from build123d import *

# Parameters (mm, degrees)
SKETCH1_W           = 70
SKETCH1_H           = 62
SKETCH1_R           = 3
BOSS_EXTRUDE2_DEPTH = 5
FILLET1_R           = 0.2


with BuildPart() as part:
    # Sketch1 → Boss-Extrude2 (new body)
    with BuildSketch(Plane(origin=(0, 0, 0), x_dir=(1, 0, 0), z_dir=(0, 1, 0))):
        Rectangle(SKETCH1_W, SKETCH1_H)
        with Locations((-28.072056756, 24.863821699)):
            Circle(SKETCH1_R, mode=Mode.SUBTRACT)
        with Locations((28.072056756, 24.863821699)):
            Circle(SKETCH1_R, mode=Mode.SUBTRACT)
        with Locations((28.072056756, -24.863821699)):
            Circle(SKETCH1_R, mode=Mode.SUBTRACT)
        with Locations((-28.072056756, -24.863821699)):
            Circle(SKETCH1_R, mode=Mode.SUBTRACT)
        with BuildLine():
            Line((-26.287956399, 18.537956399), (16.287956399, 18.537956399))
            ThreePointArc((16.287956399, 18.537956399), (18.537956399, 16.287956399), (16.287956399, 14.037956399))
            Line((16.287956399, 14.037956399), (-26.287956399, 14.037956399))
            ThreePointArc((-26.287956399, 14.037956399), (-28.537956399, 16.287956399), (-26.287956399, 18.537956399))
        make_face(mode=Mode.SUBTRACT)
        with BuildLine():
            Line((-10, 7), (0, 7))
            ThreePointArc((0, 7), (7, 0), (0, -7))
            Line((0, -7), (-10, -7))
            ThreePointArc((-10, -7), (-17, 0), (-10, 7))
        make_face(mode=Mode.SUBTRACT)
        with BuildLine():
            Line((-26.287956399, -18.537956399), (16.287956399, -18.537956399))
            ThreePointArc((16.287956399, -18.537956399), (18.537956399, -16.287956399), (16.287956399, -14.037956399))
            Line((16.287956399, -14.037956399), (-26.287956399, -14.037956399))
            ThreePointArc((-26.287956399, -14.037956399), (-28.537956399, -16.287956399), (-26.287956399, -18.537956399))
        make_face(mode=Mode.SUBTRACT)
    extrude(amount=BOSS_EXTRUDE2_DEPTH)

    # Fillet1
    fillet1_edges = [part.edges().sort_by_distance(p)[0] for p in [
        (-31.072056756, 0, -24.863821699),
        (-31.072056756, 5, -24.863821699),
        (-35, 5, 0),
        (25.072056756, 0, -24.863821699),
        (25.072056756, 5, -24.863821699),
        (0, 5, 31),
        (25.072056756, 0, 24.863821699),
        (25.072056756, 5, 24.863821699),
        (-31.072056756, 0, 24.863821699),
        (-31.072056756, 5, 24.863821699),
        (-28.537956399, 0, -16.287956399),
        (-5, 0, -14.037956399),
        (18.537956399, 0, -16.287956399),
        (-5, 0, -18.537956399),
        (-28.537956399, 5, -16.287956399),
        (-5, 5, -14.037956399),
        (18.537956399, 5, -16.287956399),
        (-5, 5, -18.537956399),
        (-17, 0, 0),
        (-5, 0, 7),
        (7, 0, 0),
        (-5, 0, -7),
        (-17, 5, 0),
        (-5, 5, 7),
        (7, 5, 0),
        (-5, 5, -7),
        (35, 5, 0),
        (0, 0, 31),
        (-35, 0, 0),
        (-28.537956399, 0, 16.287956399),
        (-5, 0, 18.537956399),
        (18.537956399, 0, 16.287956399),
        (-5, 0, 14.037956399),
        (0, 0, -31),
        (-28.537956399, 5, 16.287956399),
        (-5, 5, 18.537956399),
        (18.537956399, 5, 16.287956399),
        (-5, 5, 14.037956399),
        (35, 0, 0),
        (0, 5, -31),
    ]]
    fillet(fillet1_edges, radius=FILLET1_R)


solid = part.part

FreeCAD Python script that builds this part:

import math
import FreeCAD as App
import Part
import Sketcher
Q = App.Units.Quantity


def edges_at(feature, points):
    """Names of the edges that pass closest to the given points."""
    edges = feature.Shape.Edges
    near = lambda p: min(range(len(edges)), key=lambda i: edges[i].distToShape(Part.Vertex(*p))[0])
    return sorted({f"Edge{near(p) + 1}" for p in points})

doc = App.newDocument("Part")
body = doc.addObject("PartDesign::Body", "Body")

# Sketch on XZ plane
sketch1 = body.newObject("Sketcher::SketchObject", "Sketch")
sketch1.AttachmentSupport = (doc.getObject("XZ_Plane"), [""])
sketch1.MapMode = "FlatFace"
sketch1.addGeometry([
    Part.LineSegment(App.Vector(-35, -31, 0), App.Vector(-35, 31, 0)),  # 0
    Part.LineSegment(App.Vector(-35, 31, 0), App.Vector(35, 31, 0)),  # 1
    Part.LineSegment(App.Vector(35, 31, 0), App.Vector(35, -31, 0)),  # 2
    Part.LineSegment(App.Vector(35, -31, 0), App.Vector(-35, -31, 0)),  # 3
    Part.Circle(App.Vector(-28.1, 24.9, 0), App.Vector(0, 0, 1), 3),  # 4
    Part.LineSegment(App.Vector(16.3, 18.5, 0), App.Vector(-26.3, 18.5, 0)),  # 5
    Part.ArcOfCircle(Part.Circle(App.Vector(-26.3, 16.3, 0), App.Vector(0, 0, 1), 2.2), math.radians(90), math.radians(270)),  # 6
    Part.LineSegment(App.Vector(-26.3, 14, 0), App.Vector(16.3, 14, 0)),  # 7
    Part.ArcOfCircle(Part.Circle(App.Vector(16.3, 16.3, 0), App.Vector(0, 0, 1), 2.2), math.radians(-90), math.radians(90)),  # 8
    Part.Circle(App.Vector(28.1, 24.9, 0), App.Vector(0, 0, 1), 3),  # 9
    Part.ArcOfCircle(Part.Circle(App.Vector(-10, 0, 0), App.Vector(0, 0, 1), 7), math.radians(90), math.radians(270)),  # 10
    Part.LineSegment(App.Vector(-10, -7, 0), App.Vector(0, -7, 0)),  # 11
    Part.ArcOfCircle(Part.Circle(App.Vector(0, 0, 0), App.Vector(0, 0, 1), 7), math.radians(-90), math.radians(90)),  # 12
    Part.LineSegment(App.Vector(0, 7, 0), App.Vector(-10, 7, 0)),  # 13
    Part.Circle(App.Vector(-28.1, -24.9, 0), App.Vector(0, 0, 1), 3),  # 14
    Part.ArcOfCircle(Part.Circle(App.Vector(-26.3, -16.3, 0), App.Vector(0, 0, 1), 2.2), math.radians(90), math.radians(270)),  # 15
    Part.LineSegment(App.Vector(-26.3, -18.5, 0), App.Vector(16.3, -18.5, 0)),  # 16
    Part.ArcOfCircle(Part.Circle(App.Vector(16.3, -16.3, 0), App.Vector(0, 0, 1), 2.2), math.radians(-90), math.radians(90)),  # 17
    Part.LineSegment(App.Vector(16.3, -14, 0), App.Vector(-26.3, -14, 0)),  # 18
    Part.Circle(App.Vector(28.1, -24.9, 0), App.Vector(0, 0, 1), 3),  # 19
], False)
sketch1.addConstraint([
    Sketcher.Constraint("Coincident", 0, 2, 1, 1),
    Sketcher.Constraint("Coincident", 1, 2, 2, 1),
    Sketcher.Constraint("Coincident", 2, 2, 3, 1),
    Sketcher.Constraint("Coincident", 3, 2, 0, 1),
    Sketcher.Constraint("Tangent", 5, 2, 6, 1),
    Sketcher.Constraint("Tangent", 6, 2, 7, 1),
    Sketcher.Constraint("Tangent", 7, 2, 8, 1),
    Sketcher.Constraint("Tangent", 8, 2, 5, 1),
    Sketcher.Constraint("Tangent", 10, 2, 11, 1),
    Sketcher.Constraint("Tangent", 11, 2, 12, 1),
    Sketcher.Constraint("Tangent", 12, 2, 13, 1),
    Sketcher.Constraint("Tangent", 13, 2, 10, 1),
    Sketcher.Constraint("Tangent", 15, 2, 16, 1),
    Sketcher.Constraint("Tangent", 16, 2, 17, 1),
    Sketcher.Constraint("Tangent", 17, 2, 18, 1),
    Sketcher.Constraint("Tangent", 18, 2, 15, 1),
    Sketcher.Constraint("Vertical", 0),
    Sketcher.Constraint("Horizontal", 1),
    Sketcher.Constraint("Vertical", 2),
    Sketcher.Constraint("Horizontal", 3),
    Sketcher.Constraint("Horizontal", 5),
    Sketcher.Constraint("Horizontal", 7),
    Sketcher.Constraint("Horizontal", 11),
    Sketcher.Constraint("Horizontal", 13),
    Sketcher.Constraint("Horizontal", 16),
    Sketcher.Constraint("Horizontal", 18),
    Sketcher.Constraint("Coincident", 12, 3, -1, 1),
    Sketcher.Constraint("Equal", 4, 9),
    Sketcher.Constraint("Equal", 9, 14),
    Sketcher.Constraint("Equal", 8, 15),
    Sketcher.Constraint("Equal", 14, 19),
    Sketcher.Constraint("Symmetric", 9, 3, 14, 3, -1, 1),
    Sketcher.Constraint("Symmetric", 4, 3, 19, 3, -1, 1),
    Sketcher.Constraint("Symmetric", 0, 2, 2, 2, -1, 1),
    Sketcher.Constraint("Symmetric", 4, 3, 9, 3, -2),
    Sketcher.Constraint("Symmetric", 6, 3, 15, 3, -1),
    Sketcher.Constraint("Vertical", 8, 3, 17, 3),
    Sketcher.Constraint("Diameter", 4, Q("6 mm")),
    Sketcher.Constraint("Radius", 10, Q("7 mm")),
    Sketcher.Constraint("DistanceX", 1, 1, 1, 2, Q("70 mm")),
    Sketcher.Constraint("DistanceX", 11, 1, 11, 2, Q("10 mm")),
    Sketcher.Constraint("DistanceY", 0, 1, 0, 2, Q("62 mm")),
    Sketcher.Constraint("Radius", 6, Q("2.25 mm")),
    Sketcher.Constraint("DistanceX", 4, 3, 6, 3, Q("1.7841 mm")),
    Sketcher.Constraint("DistanceX", 8, 3, 9, 3, Q("11.7841 mm")),
    Sketcher.Constraint("DistanceX", 5, 2, 5, 1, Q("42.575913 mm")),
    Sketcher.Constraint("DistanceY", -1, 1, 4, 3, Q("24.863822 mm")),
    Sketcher.Constraint("DistanceY", 14, 3, 6, 3, Q("41.151778 mm")),
])
pad1 = body.newObject("PartDesign::Pad", "Pad")
pad1.Profile = sketch1
pad1.Length = 5
pad1.Reversed = True
doc.recompute()

fillet = body.newObject("PartDesign::Fillet", "Fillet")
fillet.Base = (pad1, edges_at(pad1, [
    (-31.072, 0, -24.864),
    (-31.072, 5, -24.864),
    (-35, 5, 0),
    (25.072, 0, -24.864),
    (25.072, 5, -24.864),
    (0, 5, 31),
    (25.072, 0, 24.864),
    (25.072, 5, 24.864),
    (-31.072, 0, 24.864),
    (-31.072, 5, 24.864),
    (-28.538, 0, -16.288),
    (-5, 0, -14.038),
    (18.538, 0, -16.288),
    (-5, 0, -18.538),
    (-28.538, 5, -16.288),
    (-5, 5, -14.038),
    (18.538, 5, -16.288),
    (-5, 5, -18.538),
    (-17, 0, 0),
    (-5, 0, 7),
    (7, 0, 0),
    (-5, 0, -7),
    (-17, 5, 0),
    (-5, 5, 7),
    (7, 5, 0),
    (-5, 5, -7),
    (35, 5, 0),
    (0, 0, 31),
    (-35, 0, 0),
    (-28.538, 0, 16.288),
    (-5, 0, 18.538),
    (18.538, 0, 16.288),
    (-5, 0, 14.038),
    (0, 0, -31),
    (-28.538, 5, 16.288),
    (-5, 5, 18.538),
    (18.538, 5, 16.288),
    (-5, 5, 14.038),
    (35, 0, 0),
    (0, 5, -31),
]))
fillet.Radius = 0.2

doc.recompute()
